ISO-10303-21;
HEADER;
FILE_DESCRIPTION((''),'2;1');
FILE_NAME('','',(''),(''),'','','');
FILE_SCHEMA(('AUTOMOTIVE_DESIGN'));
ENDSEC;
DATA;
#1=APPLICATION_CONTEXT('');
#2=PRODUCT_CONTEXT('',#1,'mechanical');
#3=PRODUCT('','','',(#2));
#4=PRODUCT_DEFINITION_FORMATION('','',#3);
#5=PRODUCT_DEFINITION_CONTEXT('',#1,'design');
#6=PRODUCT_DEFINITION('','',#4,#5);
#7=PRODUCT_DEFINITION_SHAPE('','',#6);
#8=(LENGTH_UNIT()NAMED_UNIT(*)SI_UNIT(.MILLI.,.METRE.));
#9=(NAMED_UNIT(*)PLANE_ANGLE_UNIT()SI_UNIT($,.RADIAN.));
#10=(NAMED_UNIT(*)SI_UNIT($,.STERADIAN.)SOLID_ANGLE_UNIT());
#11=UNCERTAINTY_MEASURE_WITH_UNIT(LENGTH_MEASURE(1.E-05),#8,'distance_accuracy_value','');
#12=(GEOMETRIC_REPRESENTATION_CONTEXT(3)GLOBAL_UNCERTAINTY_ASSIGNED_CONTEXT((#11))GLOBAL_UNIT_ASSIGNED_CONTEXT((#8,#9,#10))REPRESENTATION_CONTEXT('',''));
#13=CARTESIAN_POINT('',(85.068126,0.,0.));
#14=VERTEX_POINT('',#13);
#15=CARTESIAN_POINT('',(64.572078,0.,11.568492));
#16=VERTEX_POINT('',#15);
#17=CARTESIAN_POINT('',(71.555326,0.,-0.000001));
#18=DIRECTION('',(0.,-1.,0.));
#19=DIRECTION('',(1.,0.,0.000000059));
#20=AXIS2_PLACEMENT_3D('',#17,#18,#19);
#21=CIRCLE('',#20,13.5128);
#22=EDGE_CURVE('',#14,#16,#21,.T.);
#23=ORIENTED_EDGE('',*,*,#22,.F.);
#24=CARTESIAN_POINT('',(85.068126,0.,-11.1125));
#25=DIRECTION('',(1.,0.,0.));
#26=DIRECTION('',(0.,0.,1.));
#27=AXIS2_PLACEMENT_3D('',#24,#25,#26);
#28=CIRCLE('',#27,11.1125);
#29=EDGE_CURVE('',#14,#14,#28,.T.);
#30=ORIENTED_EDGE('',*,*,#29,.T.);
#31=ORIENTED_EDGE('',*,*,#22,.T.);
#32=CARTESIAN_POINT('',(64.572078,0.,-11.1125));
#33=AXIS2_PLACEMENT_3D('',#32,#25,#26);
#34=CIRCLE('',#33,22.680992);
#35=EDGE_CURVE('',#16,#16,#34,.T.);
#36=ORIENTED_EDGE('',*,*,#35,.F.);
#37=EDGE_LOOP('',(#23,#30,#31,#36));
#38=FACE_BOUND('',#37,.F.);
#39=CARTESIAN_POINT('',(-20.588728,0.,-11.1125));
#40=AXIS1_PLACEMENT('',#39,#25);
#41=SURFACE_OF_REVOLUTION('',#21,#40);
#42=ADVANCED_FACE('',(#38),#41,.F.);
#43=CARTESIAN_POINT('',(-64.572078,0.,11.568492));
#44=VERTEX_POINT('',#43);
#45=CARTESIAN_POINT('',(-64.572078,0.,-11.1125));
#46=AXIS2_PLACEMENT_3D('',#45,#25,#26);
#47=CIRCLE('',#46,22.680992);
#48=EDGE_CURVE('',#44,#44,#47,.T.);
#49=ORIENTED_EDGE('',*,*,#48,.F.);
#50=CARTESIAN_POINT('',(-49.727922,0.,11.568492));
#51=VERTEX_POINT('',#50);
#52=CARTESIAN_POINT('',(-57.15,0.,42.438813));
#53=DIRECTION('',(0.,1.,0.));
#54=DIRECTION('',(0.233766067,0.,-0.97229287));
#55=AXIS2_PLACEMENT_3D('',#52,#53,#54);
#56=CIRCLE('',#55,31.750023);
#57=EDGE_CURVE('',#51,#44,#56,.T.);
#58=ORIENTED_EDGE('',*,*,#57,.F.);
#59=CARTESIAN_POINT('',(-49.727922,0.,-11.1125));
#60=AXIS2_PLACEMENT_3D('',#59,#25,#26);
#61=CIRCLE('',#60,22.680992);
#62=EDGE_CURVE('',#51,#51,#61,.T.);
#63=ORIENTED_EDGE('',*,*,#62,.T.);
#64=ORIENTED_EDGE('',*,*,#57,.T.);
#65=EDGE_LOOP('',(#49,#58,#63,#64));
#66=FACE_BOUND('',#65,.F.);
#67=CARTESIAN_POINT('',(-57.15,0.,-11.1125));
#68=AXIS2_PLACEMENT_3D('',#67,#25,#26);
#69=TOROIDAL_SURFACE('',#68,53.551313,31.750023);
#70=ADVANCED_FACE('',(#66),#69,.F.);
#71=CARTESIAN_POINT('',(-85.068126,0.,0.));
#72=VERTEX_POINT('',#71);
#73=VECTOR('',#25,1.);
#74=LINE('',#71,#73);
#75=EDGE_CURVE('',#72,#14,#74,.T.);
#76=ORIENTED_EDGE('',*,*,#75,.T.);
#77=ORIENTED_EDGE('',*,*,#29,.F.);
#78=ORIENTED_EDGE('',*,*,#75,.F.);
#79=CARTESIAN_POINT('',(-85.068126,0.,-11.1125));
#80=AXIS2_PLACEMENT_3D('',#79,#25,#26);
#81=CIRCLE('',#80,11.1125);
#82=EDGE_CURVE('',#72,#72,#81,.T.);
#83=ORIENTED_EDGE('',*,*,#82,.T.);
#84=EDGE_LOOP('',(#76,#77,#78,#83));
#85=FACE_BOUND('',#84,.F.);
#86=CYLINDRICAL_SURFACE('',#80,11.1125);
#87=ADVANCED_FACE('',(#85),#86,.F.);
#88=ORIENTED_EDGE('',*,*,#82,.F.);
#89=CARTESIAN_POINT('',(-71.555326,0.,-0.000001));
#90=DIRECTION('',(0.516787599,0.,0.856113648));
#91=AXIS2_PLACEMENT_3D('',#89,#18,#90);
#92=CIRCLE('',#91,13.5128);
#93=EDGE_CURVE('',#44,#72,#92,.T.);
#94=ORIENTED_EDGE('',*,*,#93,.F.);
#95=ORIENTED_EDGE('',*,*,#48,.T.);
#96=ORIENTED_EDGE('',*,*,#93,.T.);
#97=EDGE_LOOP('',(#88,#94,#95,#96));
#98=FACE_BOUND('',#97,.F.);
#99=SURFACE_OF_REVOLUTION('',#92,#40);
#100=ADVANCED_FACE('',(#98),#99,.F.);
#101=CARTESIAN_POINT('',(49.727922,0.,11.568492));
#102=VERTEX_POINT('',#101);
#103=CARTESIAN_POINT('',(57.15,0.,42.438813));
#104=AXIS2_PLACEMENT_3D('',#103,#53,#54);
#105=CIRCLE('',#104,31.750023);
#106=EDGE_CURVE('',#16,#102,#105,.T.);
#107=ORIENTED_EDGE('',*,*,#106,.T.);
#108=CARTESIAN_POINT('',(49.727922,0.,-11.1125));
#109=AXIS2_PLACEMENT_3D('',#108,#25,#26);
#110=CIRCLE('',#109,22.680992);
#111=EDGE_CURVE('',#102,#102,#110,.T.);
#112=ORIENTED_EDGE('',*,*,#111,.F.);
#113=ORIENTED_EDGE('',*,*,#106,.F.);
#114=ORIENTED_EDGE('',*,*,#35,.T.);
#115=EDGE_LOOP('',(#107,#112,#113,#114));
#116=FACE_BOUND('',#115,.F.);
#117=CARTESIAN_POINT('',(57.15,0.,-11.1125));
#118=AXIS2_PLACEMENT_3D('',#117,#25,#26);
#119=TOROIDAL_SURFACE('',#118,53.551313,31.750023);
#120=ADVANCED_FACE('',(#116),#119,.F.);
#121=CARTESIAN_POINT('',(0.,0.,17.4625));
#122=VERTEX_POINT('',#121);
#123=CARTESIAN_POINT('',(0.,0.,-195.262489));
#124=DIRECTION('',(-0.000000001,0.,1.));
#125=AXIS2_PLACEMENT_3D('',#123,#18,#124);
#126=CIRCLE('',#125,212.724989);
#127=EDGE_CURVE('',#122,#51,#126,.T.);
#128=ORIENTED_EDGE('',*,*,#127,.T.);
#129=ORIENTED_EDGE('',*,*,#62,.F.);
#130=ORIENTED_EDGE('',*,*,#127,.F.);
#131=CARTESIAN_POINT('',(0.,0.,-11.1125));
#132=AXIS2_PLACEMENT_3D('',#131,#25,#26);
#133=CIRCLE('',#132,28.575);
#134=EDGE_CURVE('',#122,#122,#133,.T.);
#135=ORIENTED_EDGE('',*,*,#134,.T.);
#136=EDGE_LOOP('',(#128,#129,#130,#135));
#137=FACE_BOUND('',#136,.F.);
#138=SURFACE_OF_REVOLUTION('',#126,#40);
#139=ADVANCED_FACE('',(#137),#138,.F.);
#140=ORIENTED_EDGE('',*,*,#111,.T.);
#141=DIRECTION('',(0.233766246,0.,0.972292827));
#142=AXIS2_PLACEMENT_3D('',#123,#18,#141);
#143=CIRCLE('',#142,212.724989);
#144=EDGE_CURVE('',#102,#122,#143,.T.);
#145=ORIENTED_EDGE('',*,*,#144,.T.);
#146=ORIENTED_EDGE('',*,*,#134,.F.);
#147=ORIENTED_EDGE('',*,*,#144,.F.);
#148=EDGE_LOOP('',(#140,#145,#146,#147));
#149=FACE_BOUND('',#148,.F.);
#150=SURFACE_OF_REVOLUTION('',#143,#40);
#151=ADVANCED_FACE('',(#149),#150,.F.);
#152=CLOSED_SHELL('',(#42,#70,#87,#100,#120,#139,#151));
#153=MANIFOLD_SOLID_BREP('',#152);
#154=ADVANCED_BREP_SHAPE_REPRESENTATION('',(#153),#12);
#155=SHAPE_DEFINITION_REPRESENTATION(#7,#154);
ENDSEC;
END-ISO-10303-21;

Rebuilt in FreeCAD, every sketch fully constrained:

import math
import FreeCAD as App
import Part
import Sketcher
from FreeCAD import Vector
Q = App.Units.Quantity

doc = App.newDocument("Part")
body = doc.addObject("PartDesign::Body", "Body")

sketch1 = doc.addObject("Sketcher::SketchObject", "Sketch")
body.addObject(sketch1)
sketch1.AttachmentSupport = (doc.XZ_Plane, [""])
sketch1.MapMode = "FlatFace"
sketch1.addGeometry([
    Part.ArcOfCircle(Part.Circle(Vector(0, -195, 0), Vector(0, 0, 1), 213), math.radians(90), math.radians(103.52)),
    Part.ArcOfCircle(Part.Circle(Vector(-57, 42, 0), Vector(0, 0, 1), 32), math.radians(-104), math.radians(-76)),
    Part.ArcOfCircle(Part.Circle(Vector(-72, 0, 0), Vector(0, 0, 1), 14), math.radians(59), math.radians(180)),
    Part.LineSegment(Vector(-85, 0, 0), Vector(85, 0, 0)),
    Part.ArcOfCircle(Part.Circle(Vector(72, 0, 0), Vector(0, 0, 1), 14), math.radians(0), math.radians(121)),
    Part.ArcOfCircle(Part.Circle(Vector(57, 42, 0), Vector(0, 0, 1), 32), math.radians(-104), math.radians(-76)),
    Part.ArcOfCircle(Part.Circle(Vector(0, -195, 0), Vector(0, 0, 1), 213), math.radians(76.48), math.radians(90)),
], False)
sketch1.addGeometry(Part.LineSegment(Vector(-85, -11, 0), Vector(85, -11, 0)), True)
sketch1.addConstraint([
    Sketcher.Constraint("Tangent", 0, 2, 1, 2),
    Sketcher.Constraint("Coincident", 1, 1, 2, 1),
    Sketcher.Constraint("Coincident", 2, 2, 3, 1),
    Sketcher.Constraint("Coincident", 3, 2, 4, 1),
    Sketcher.Constraint("Coincident", 4, 2, 5, 2),
    Sketcher.Constraint("Tangent", 5, 1, 6, 1),
    Sketcher.Constraint("Tangent", 6, 2, 0, 1),
    Sketcher.Constraint("Horizontal", 3),
    Sketcher.Constraint("Horizontal", 7),
    Sketcher.Constraint("Equal", 2, 4),
    Sketcher.Constraint("Equal", 1, 5),
    Sketcher.Constraint("Equal", 0, 6),
    Sketcher.Constraint("Symmetric", 2, 3, 4, 3, -1, 1),
    Sketcher.Constraint("Symmetric", 1, 3, 5, 3, -2),
    Sketcher.Constraint("PointOnObject", 2, 3, -1),
    Sketcher.Constraint("PointOnObject", 2, 2, -1),
    Sketcher.Constraint("PointOnObject", 6, 2, -2),
    Sketcher.Constraint("Horizontal", 0, 2, 1, 1),
    Sketcher.Constraint("Vertical", 2, 2, 7, 1),
    Sketcher.Constraint("Vertical", 3, 2, 7, 2),
    Sketcher.Constraint("Radius", 2, Q("0.532 in")),
    Sketcher.Constraint("DistanceX", 1, 3, 5, 3, Q("4.5 in")),
    Sketcher.Constraint("DistanceY", -1, 1, 6, 2, Q("0.6875 in")),
    Sketcher.Constraint("DistanceY", 7, 1, -1, 1, Q("0.4375 in")),
    Sketcher.Constraint("Radius", 0, Q("212.724989 mm")),
    Sketcher.Constraint("Radius", 1, Q("31.750023 mm")),
])
revolution = doc.addObject("PartDesign::Revolution", "Revolution")
body.addObject(revolution)
revolution.Profile = sketch1
revolution.ReferenceAxis = (sketch1, ["Axis0"])
revolution.Angle = 360

doc.recompute()
